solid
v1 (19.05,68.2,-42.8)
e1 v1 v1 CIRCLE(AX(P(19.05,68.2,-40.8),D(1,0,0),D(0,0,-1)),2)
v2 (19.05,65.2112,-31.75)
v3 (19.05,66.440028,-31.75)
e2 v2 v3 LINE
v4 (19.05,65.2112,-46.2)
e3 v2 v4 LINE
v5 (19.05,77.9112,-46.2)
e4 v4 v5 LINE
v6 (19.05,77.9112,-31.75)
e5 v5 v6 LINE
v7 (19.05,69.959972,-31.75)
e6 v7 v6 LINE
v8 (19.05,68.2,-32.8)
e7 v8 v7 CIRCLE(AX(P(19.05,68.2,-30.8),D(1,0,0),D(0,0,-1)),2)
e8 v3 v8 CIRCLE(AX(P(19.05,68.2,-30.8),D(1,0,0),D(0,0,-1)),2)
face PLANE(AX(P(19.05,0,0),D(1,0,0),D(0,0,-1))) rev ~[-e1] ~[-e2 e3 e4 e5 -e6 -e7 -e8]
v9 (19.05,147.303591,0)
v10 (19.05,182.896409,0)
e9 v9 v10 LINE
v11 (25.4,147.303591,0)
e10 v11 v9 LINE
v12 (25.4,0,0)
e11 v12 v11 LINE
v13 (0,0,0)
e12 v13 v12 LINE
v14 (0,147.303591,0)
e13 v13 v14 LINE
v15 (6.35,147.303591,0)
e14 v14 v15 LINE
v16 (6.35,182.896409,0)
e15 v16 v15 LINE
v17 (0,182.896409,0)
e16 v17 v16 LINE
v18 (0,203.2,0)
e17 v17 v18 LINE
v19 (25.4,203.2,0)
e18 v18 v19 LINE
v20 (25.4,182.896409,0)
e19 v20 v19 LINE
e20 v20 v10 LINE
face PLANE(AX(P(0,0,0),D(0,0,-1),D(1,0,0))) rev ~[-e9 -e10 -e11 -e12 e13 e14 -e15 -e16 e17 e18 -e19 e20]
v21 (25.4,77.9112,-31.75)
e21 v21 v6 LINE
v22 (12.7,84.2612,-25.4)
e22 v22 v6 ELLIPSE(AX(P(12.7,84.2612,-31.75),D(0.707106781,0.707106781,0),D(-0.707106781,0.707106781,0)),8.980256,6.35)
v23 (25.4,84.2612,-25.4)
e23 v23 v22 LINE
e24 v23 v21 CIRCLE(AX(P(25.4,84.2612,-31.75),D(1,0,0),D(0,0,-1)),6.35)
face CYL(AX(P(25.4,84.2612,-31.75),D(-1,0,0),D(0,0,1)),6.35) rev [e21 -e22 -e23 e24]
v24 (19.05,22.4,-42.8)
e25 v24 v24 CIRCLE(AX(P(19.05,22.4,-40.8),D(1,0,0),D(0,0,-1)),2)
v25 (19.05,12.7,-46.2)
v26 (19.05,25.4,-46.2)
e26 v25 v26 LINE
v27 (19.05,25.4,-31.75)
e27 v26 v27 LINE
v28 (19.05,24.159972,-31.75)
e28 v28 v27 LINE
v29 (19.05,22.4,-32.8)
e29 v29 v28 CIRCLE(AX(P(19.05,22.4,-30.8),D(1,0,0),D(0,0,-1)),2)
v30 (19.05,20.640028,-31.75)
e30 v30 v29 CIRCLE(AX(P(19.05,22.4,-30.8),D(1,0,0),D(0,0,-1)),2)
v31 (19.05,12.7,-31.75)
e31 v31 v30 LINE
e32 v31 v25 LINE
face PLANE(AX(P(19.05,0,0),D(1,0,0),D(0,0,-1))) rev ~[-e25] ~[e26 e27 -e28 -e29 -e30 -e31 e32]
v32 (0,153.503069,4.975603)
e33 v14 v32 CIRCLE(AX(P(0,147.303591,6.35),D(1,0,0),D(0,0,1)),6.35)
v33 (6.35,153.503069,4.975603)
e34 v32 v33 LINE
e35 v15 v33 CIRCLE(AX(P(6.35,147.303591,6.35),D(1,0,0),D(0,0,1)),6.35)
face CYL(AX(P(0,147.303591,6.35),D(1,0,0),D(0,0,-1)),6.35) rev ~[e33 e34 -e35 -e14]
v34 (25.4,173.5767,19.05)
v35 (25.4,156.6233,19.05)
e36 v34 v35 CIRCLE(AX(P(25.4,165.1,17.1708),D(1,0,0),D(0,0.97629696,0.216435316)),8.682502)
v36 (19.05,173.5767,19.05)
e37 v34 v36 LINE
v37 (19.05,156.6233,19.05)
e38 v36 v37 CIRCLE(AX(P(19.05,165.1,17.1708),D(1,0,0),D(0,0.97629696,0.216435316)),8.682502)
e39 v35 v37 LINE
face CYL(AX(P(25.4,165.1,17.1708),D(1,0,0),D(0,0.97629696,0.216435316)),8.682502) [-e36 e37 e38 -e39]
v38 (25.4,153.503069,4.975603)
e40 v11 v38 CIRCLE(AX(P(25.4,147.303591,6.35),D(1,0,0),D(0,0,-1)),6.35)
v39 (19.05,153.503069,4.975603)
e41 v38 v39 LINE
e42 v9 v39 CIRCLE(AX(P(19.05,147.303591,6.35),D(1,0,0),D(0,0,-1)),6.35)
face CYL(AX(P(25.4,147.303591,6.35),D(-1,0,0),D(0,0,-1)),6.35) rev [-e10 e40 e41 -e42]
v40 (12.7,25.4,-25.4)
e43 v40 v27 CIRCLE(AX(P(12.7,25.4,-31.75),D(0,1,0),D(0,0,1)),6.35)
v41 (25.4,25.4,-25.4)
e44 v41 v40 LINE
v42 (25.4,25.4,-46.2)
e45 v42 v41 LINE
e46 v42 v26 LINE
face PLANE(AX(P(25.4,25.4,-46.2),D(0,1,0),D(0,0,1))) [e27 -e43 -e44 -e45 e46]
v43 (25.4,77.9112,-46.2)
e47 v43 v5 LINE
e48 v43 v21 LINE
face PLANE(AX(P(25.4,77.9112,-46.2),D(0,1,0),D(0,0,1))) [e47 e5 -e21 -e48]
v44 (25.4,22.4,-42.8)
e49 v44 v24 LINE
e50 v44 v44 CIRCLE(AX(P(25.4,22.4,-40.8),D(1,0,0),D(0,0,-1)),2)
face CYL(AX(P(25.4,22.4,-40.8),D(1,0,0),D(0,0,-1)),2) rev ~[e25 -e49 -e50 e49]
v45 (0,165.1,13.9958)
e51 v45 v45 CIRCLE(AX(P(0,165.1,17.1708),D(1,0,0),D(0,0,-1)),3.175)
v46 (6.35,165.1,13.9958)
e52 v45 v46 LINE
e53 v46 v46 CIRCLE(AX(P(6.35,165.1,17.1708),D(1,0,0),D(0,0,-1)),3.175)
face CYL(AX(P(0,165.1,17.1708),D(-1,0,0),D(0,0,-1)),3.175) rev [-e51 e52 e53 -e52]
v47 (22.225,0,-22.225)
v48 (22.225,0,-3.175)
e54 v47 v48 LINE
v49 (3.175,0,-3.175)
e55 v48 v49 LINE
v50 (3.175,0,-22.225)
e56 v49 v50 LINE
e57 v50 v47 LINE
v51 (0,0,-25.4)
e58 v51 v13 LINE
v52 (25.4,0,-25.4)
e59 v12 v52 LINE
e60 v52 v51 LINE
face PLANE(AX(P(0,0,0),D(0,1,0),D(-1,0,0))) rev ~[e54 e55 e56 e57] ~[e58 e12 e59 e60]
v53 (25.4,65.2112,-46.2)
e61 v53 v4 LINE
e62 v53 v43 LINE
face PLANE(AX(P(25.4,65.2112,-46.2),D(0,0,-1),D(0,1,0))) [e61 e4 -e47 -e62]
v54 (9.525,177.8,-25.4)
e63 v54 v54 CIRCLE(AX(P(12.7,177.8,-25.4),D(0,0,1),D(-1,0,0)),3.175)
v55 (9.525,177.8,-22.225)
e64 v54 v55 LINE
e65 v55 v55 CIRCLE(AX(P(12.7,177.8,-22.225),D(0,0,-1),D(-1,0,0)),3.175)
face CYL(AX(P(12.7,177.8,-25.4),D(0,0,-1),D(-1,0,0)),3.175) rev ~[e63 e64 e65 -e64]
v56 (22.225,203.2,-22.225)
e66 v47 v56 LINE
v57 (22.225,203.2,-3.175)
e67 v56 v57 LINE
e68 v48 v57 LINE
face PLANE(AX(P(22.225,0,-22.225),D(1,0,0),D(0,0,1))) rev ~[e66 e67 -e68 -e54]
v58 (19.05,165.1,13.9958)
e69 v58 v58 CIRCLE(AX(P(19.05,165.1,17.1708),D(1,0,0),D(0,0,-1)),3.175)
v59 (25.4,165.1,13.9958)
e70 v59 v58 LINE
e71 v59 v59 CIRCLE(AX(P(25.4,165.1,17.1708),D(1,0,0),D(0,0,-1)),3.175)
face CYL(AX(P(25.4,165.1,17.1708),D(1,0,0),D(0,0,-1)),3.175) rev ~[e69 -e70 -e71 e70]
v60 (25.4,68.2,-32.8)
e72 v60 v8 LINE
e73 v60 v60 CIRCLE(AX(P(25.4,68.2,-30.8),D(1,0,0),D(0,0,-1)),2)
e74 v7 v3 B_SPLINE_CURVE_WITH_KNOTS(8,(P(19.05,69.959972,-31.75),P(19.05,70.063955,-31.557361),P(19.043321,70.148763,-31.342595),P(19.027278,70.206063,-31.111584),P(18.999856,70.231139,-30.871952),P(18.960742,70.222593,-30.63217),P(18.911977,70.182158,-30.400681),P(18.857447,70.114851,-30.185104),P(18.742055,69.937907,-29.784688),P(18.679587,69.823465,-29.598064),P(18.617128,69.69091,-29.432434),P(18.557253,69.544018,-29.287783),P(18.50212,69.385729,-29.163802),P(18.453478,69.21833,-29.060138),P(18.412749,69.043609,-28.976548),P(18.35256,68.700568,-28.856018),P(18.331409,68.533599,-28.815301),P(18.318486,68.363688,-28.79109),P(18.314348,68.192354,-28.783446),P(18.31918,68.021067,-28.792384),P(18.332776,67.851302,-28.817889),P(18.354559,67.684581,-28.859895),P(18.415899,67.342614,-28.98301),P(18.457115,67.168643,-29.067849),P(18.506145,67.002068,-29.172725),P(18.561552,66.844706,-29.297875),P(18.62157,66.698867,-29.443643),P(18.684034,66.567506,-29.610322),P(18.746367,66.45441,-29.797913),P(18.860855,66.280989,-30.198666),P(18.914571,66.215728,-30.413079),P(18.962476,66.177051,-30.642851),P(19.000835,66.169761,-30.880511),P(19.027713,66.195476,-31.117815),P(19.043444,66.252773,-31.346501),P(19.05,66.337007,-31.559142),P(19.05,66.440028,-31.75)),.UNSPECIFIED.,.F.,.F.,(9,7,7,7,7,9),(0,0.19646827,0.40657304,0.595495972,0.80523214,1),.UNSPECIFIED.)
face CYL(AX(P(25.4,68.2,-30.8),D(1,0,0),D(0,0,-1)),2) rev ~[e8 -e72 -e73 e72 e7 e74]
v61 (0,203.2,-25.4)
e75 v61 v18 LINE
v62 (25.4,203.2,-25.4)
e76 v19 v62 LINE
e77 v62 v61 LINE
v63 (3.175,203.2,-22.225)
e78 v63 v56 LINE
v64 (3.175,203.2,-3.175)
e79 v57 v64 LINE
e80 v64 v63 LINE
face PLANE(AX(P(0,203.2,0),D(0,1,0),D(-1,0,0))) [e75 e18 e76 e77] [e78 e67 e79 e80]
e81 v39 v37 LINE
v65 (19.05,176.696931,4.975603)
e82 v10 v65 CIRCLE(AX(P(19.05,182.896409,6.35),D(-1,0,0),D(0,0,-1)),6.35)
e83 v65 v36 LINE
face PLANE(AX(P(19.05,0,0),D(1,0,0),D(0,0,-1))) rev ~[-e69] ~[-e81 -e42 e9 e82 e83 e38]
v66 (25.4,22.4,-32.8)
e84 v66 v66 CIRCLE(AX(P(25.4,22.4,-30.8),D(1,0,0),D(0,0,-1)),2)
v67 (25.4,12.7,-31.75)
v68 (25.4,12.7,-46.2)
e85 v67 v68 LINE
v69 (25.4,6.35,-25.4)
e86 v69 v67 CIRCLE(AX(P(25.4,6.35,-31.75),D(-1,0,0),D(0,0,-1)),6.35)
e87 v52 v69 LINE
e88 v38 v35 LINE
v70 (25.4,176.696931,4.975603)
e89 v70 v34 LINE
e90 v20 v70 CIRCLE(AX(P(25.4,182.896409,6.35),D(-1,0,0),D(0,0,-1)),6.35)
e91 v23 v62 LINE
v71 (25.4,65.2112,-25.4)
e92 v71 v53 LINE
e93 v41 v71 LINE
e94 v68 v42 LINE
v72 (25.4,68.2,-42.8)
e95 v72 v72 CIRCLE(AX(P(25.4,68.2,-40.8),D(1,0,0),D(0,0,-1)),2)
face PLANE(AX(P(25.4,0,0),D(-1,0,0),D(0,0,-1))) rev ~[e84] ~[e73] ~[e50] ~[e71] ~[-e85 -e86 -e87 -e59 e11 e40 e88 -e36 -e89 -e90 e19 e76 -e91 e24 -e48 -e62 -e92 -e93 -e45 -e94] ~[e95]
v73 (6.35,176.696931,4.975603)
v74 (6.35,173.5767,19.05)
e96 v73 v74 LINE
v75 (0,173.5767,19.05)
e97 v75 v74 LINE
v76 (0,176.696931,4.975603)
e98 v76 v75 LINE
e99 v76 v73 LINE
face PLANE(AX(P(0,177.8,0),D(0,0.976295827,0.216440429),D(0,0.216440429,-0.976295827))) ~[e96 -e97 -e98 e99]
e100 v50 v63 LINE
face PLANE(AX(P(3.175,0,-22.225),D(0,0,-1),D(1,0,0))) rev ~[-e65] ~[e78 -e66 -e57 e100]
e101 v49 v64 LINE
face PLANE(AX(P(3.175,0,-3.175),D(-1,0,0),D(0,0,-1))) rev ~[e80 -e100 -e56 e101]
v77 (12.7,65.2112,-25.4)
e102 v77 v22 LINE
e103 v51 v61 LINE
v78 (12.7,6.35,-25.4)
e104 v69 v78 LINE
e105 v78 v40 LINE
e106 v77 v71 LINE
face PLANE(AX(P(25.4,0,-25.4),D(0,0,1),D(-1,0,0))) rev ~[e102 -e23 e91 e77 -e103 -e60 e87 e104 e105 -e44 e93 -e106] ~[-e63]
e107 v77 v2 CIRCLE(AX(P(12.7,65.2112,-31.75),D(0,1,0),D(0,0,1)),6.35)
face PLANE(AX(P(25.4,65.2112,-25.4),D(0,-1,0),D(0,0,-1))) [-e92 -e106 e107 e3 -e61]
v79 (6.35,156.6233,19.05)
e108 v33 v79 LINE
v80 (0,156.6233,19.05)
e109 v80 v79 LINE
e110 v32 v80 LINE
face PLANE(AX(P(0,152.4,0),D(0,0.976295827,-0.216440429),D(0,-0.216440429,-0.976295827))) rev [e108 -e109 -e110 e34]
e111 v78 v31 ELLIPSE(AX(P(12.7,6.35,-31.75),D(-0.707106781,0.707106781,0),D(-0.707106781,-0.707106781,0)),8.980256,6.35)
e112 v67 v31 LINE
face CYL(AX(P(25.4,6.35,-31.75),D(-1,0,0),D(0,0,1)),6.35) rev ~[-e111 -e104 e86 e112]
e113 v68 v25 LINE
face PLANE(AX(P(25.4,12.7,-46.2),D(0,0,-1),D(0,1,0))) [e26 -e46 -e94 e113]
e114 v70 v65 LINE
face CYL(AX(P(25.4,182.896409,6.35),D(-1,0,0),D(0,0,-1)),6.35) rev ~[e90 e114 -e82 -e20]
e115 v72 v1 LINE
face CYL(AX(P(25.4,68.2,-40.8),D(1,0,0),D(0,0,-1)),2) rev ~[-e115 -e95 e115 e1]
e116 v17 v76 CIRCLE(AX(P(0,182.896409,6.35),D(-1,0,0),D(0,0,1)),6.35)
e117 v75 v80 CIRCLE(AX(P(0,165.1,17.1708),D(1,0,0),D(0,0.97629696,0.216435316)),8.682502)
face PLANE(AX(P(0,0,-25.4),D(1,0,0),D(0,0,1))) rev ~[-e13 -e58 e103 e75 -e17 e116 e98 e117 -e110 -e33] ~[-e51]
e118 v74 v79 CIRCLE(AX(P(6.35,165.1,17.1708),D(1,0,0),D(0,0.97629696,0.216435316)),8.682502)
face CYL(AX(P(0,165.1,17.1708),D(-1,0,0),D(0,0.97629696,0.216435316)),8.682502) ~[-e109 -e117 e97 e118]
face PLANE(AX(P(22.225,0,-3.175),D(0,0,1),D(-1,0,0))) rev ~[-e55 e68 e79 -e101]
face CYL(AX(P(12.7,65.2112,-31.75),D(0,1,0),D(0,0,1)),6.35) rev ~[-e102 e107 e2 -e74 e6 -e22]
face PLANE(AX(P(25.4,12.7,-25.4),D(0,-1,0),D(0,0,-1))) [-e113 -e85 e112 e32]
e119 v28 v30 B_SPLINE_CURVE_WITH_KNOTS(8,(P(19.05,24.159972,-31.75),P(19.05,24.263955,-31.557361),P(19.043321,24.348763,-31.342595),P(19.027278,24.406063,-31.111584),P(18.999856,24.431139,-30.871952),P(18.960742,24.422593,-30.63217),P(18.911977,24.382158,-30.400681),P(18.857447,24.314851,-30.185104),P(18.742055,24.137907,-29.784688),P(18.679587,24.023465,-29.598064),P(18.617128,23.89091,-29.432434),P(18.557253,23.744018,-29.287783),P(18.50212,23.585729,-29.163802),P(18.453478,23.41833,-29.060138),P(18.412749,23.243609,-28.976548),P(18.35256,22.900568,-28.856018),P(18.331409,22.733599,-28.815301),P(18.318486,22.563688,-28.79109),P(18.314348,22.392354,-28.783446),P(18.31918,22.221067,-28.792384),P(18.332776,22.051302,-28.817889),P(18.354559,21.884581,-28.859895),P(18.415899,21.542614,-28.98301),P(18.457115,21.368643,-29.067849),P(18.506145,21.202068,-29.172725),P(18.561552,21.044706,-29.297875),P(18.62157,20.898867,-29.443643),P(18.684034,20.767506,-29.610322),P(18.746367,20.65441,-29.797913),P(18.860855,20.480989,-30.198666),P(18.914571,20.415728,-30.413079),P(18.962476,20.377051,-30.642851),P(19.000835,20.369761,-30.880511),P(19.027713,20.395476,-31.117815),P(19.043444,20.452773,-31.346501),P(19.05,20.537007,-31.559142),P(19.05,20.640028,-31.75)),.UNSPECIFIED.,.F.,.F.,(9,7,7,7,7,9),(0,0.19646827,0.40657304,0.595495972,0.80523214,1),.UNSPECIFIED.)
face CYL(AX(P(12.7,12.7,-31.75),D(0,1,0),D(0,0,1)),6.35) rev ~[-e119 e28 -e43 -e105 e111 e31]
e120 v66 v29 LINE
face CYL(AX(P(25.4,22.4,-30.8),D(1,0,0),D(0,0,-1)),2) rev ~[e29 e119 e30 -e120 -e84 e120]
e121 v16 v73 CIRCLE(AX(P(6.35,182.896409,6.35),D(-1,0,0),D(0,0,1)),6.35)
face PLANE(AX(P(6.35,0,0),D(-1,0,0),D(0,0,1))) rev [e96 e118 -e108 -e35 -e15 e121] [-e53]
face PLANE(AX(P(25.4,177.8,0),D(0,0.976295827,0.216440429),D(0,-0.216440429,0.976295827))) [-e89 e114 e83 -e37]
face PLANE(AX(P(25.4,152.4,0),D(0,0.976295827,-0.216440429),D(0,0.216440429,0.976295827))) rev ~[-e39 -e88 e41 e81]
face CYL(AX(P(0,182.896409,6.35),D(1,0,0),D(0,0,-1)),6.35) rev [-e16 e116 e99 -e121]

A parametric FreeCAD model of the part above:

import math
import FreeCAD as App
import Part
import Sketcher
from FreeCAD import Vector
Q = App.Units.Quantity


def edges_at(feature, points):
    """Names of the edges that pass closest to the given points."""
    edges = feature.Shape.Edges
    near = lambda p: min(range(len(edges)), key=lambda i: edges[i].distToShape(Part.Vertex(*p))[0])
    return sorted({f"Edge{near(p) + 1}" for p in points})

doc = App.newDocument("Part")
body = doc.addObject("PartDesign::Body", "Body")

sketch1 = body.newObject("Sketcher::SketchObject", "Sketch")
sketch1.AttachmentSupport = (doc.getObject("XZ_Plane"), [""])
sketch1.MapMode = "FlatFace"
sketch1.addGeometry([
    Part.LineSegment(Vector(0, -25, 0), Vector(0, 0, 0)),
    Part.LineSegment(Vector(0, 0, 0), Vector(25, 0, 0)),
    Part.LineSegment(Vector(25, 0, 0), Vector(25, -25, 0)),
    Part.LineSegment(Vector(25, -25, 0), Vector(0, -25, 0)),
    Part.LineSegment(Vector(3, -3, 0), Vector(3, -22, 0)),
    Part.LineSegment(Vector(3, -22, 0), Vector(22, -22, 0)),
    Part.LineSegment(Vector(22, -22, 0), Vector(22, -3, 0)),
    Part.LineSegment(Vector(22, -3, 0), Vector(3, -3, 0)),
], False)
sketch1.addConstraint([
    Sketcher.Constraint("Coincident", 0, 2, 1, 1),
    Sketcher.Constraint("Coincident", 1, 2, 2, 1),
    Sketcher.Constraint("Coincident", 2, 2, 3, 1),
    Sketcher.Constraint("Coincident", 3, 2, 0, 1),
    Sketcher.Constraint("Coincident", 4, 2, 5, 1),
    Sketcher.Constraint("Coincident", 5, 2, 6, 1),
    Sketcher.Constraint("Coincident", 6, 2, 7, 1),
    Sketcher.Constraint("Coincident", 7, 2, 4, 1),
    Sketcher.Constraint("Vertical", 0),
    Sketcher.Constraint("Horizontal", 1),
    Sketcher.Constraint("Vertical", 2),
    Sketcher.Constraint("Horizontal", 3),
    Sketcher.Constraint("Vertical", 4),
    Sketcher.Constraint("Horizontal", 5),
    Sketcher.Constraint("Vertical", 6),
    Sketcher.Constraint("Horizontal", 7),
    Sketcher.Constraint("Coincident", 0, 2, -1, 1),
    Sketcher.Constraint("Equal", 3, 0),
    Sketcher.Constraint("Equal", 7, 4),
    Sketcher.Constraint("DistanceX", 5, 1, 5, 2, Q("0.75 in")),
    Sketcher.Constraint("DistanceX", 1, 1, 1, 2, Q("1 in")),
    Sketcher.Constraint("DistanceX", -1, 1, 4, 2, Q("0.125 in")),
    Sketcher.Constraint("DistanceY", 6, 2, -1, 1, Q("0.125 in")),
])
pad1 = body.newObject("PartDesign::Pad", "Pad")
pad1.Profile = sketch1
pad1.Length = Q("8 in")
pad1.Reversed = True

sketch2 = body.newObject("Sketcher::SketchObject", "Sketch001")
sketch2.AttachmentSupport = (doc.getObject("YZ_Plane"), [""])
sketch2.MapMode = "FlatFace"
sketch2.AttachmentOffset = App.Placement(Vector(0, 0, 1 * 25.4), App.Rotation())
sketch2.addGeometry([
    Part.LineSegment(Vector(78, -25, 0), Vector(65, -25, 0)),
    Part.LineSegment(Vector(65, -25, 0), Vector(65, -46, 0)),
    Part.LineSegment(Vector(65, -46, 0), Vector(78, -46, 0)),
    Part.LineSegment(Vector(78, -46, 0), Vector(78, -25, 0)),
    Part.LineSegment(Vector(25, -25, 0), Vector(13, -25, 0)),
    Part.LineSegment(Vector(13, -25, 0), Vector(13, -46, 0)),
    Part.LineSegment(Vector(13, -46, 0), Vector(25, -46, 0)),
    Part.LineSegment(Vector(25, -46, 0), Vector(25, -25, 0)),
], False)
sketch2.addConstraint([
    Sketcher.Constraint("Coincident", 0, 2, 1, 1),
    Sketcher.Constraint("Coincident", 1, 2, 2, 1),
    Sketcher.Constraint("Coincident", 2, 2, 3, 1),
    Sketcher.Constraint("Coincident", 3, 2, 0, 1),
    Sketcher.Constraint("Coincident", 4, 2, 5, 1),
    Sketcher.Constraint("Coincident", 5, 2, 6, 1),
    Sketcher.Constraint("Coincident", 6, 2, 7, 1),
    Sketcher.Constraint("Coincident", 7, 2, 4, 1),
    Sketcher.Constraint("Horizontal", 0),
    Sketcher.Constraint("Vertical", 1),
    Sketcher.Constraint("Horizontal", 2),
    Sketcher.Constraint("Vertical", 3),
    Sketcher.Constraint("Horizontal", 4),
    Sketcher.Constraint("Vertical", 5),
    Sketcher.Constraint("Horizontal", 6),
    Sketcher.Constraint("Vertical", 7),
    Sketcher.Constraint("Horizontal", 3, 2, 4, 2),
    Sketcher.Constraint("Horizontal", 2, 2, 5, 2),
    Sketcher.Constraint("Equal", 2, 4),
    Sketcher.Constraint("DistanceX", 0, 2, 0, 1, Q("0.5 in")),
    Sketcher.Constraint("DistanceX", -1, 1, 4, 2, Q("0.5 in")),
    Sketcher.Constraint("DistanceY", 1, 2, 1, 1, Q("0.8189 in")),
    Sketcher.Constraint("DistanceY", 0, 2, -1, 1, Q("1 in")),
    Sketcher.Constraint("DistanceX", 6, 2, 1, 2, 39.8112),
])
pad2 = body.newObject("PartDesign::Pad", "Pad001")
pad2.Profile = sketch2
pad2.Length = Q("0.25 in")
pad2.Reversed = True
doc.recompute()

fillet = body.newObject("PartDesign::Fillet", "Fillet")
fillet.Base = (pad2, edges_at(pad2, [
    (22.225, 77.911, -25.4),
    (22.225, 12.7, -25.4),
    (19.05, 19.05, -25.4),
    (19.05, 71.561, -25.4),
]))
fillet.Radius = Q("0.25 in")

sketch3 = body.newObject("Sketcher::SketchObject", "Sketch002")
sketch3.AttachmentSupport = (doc.getObject("YZ_Plane"), [""])
sketch3.MapMode = "FlatFace"
sketch3.AttachmentOffset = App.Placement(Vector(0, 0, 1 * 25.4), App.Rotation())
sketch3.addGeometry([
    Part.Circle(Vector(68.2, -30.8, 0), Vector(0, 0, 1), 2),
    Part.Circle(Vector(68.2, -40.8, 0), Vector(0, 0, 1), 2),
    Part.Circle(Vector(22.4, -30.8, 0), Vector(0, 0, 1), 2),
    Part.Circle(Vector(22.4, -40.8, 0), Vector(0, 0, 1), 2),
], False)
sketch3.addConstraint([
    Sketcher.Constraint("Equal", 0, 1),
    Sketcher.Constraint("Equal", 1, 2),
    Sketcher.Constraint("Equal", 2, 3),
    Sketcher.Constraint("Horizontal", 0, 3, 2, 3),
    Sketcher.Constraint("Horizontal", 1, 3, 3, 3),
    Sketcher.Constraint("Vertical", 0, 3, 1, 3),
    Sketcher.Constraint("Vertical", 2, 3, 3, 3),
    Sketcher.Constraint("Diameter", 0, 4.0),
    Sketcher.Constraint("DistanceY", 1, 3, 0, 3, Q("0.3937 in")),
    Sketcher.Constraint("DistanceX", 2, 3, 0, 3, 45.8),
    Sketcher.Constraint("DistanceY", 0, 3, -1, 1, Q("1.2126 in")),
    Sketcher.Constraint("DistanceX", -1, 1, 2, 3, Q("0.8819 in")),
])
pocket1 = body.newObject("PartDesign::Pocket", "Pocket")
pocket1.Profile = sketch3
pocket1.Type = "ThroughAll"

sketch4 = body.newObject("Sketcher::SketchObject", "Sketch003")
sketch4.AttachmentSupport = (doc.getObject("YZ_Plane"), [""])
sketch4.MapMode = "FlatFace"
sketch4.AttachmentOffset = App.Placement(Vector(0, 0, 1 * 25.4), App.Rotation())
sketch4.addGeometry([
    Part.LineSegment(Vector(156.6, 19.1, 0), Vector(152.4, 0, 0)),
    Part.LineSegment(Vector(152.4, 0, 0), Vector(177.8, 0, 0)),
    Part.LineSegment(Vector(177.8, 0, 0), Vector(173.6, 19.1, 0)),
    Part.ArcOfCircle(Part.Circle(Vector(165.1, 17.2, 0), Vector(0, 0, 1), 8.7), math.radians(12), math.radians(168)),
    Part.Circle(Vector(165.1, 17.2, 0), Vector(0, 0, 1), 3.2),
], False)
sketch4.addConstraint([
    Sketcher.Constraint("Coincident", 0, 2, 1, 1),
    Sketcher.Constraint("Coincident", 1, 2, 2, 1),
    Sketcher.Constraint("Tangent", 2, 2, 3, 1),
    Sketcher.Constraint("Tangent", 3, 2, 0, 1),
    Sketcher.Constraint("Horizontal", 1),
    Sketcher.Constraint("Coincident", 4, 3, 3, 3),
    Sketcher.Constraint("PointOnObject", 0, 2, -1),
    Sketcher.Constraint("Horizontal", 2, 2, 3, 2),
    Sketcher.Constraint("Diameter", 4, Q("0.25 in")),
    Sketcher.Constraint("DistanceX", 1, 1, 1, 2, Q("1 in")),
    Sketcher.Constraint("Angle", 0, Q("-102.5 deg")),
    Sketcher.Constraint("DistanceY", -1, 1, 2, 2, Q("0.75 in")),
    Sketcher.Constraint("DistanceX", -1, 1, 0, 2, Q("6 in")),
])
pad3 = body.newObject("PartDesign::Pad", "Pad002")
pad3.Profile = sketch4
pad3.Length = Q("0.25 in")
pad3.Reversed = True
doc.recompute()

datumplane = body.newObject("PartDesign::Plane", "DatumPlane")
datumplane.AttachmentSupport = (doc.getObject("YZ_Plane"), [""])
datumplane.MapMode = "FlatFace"
datumplane.AttachmentOffset = App.Placement(Vector(0, 0, 0.5 * 25.4), App.Rotation())
mirrored = body.newObject("PartDesign::Mirrored", "Mirrored")
mirrored.Originals = [pad3]
mirrored.MirrorPlane = (datumplane, [""])
body.Tip = mirrored
doc.recompute()

fillet2 = body.newObject("PartDesign::Fillet", "Fillet001")
fillet2.Base = (mirrored, edges_at(mirrored, [
    (22.225, 177.8, 0),
    (3.175, 177.8, 0),
    (3.175, 152.4, 0),
    (22.225, 152.4, 0),
]))
fillet2.Radius = Q("0.25 in")

sketch5 = body.newObject("Sketcher::SketchObject", "Sketch004")
sketch5.AttachmentSupport = (doc.getObject("XY_Plane"), [""])
sketch5.MapMode = "FlatFace"
sketch5.AttachmentOffset = App.Placement(Vector(0, 0, -1 * 25.4), App.Rotation())
sketch5.addGeometry(Part.Circle(Vector(12.7, 177.8, 0), Vector(0, 0, 1), 3.2), False)
sketch5.addConstraint([
    Sketcher.Constraint("Diameter", 0, Q("0.25 in")),
    Sketcher.Constraint("DistanceY", -1, 1, 0, 3, Q("7 in")),
    Sketcher.Constraint("DistanceX", -1, 1, 0, 3, Q("0.5 in")),
])
pocket2 = body.newObject("PartDesign::Pocket", "Pocket001")
pocket2.Profile = sketch5
pocket2.Length = Q("0.5 in")
pocket2.Reversed = True

doc.recompute()
